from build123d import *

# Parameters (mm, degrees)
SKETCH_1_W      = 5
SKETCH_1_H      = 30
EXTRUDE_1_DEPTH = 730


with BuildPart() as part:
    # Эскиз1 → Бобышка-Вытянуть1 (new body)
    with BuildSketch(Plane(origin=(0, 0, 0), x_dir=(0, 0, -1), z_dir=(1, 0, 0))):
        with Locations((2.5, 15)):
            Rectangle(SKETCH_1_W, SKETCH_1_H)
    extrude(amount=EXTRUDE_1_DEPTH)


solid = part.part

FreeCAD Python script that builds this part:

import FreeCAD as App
import Part
import Sketcher

V = App.Vector
Q = App.Units.Quantity


def add_polygon(sketch, points):
    """Adds a closed chain of lines whose ends are joined by coincident constraints."""
    first, n = sketch.GeometryCount, len(points)
    for a, b in zip(points, points[1:] + points[:1]):
        sketch.addGeometry(Part.LineSegment(App.Vector(*a, 0), App.Vector(*b, 0)), False)
    for i in range(n):
        sketch.addConstraint(Sketcher.Constraint("Coincident", first + i, 2, first + (i + 1) % n, 1))

doc = App.newDocument("Part")
body = doc.addObject("PartDesign::Body", "Body")

# Sketch on YZ plane
sketch1 = body.newObject("Sketcher::SketchObject", "Sketch")
sketch1.AttachmentSupport = (doc.getObject("YZ_Plane"), [""])
sketch1.MapMode = "FlatFace"
add_polygon(sketch1, [(30, 0), (0, 0), (0, -5), (30, -5)])  # lines 0-3
sketch1.addConstraint([
    Sketcher.Constraint("Horizontal", 0),
    Sketcher.Constraint("Vertical", 1),
    Sketcher.Constraint("Horizontal", 2),
    Sketcher.Constraint("Vertical", 3),
    Sketcher.Constraint("Coincident", 0, 2, -1, 1),
    Sketcher.Constraint("DistanceX", 0, 2, 0, 1, Q("30 mm")),
    Sketcher.Constraint("DistanceY", 1, 2, 1, 1, Q("5 mm")),
])
pad1 = body.newObject("PartDesign::Pad", "Pad")
pad1.Profile = sketch1
pad1.Length = 730

doc.recompute()
